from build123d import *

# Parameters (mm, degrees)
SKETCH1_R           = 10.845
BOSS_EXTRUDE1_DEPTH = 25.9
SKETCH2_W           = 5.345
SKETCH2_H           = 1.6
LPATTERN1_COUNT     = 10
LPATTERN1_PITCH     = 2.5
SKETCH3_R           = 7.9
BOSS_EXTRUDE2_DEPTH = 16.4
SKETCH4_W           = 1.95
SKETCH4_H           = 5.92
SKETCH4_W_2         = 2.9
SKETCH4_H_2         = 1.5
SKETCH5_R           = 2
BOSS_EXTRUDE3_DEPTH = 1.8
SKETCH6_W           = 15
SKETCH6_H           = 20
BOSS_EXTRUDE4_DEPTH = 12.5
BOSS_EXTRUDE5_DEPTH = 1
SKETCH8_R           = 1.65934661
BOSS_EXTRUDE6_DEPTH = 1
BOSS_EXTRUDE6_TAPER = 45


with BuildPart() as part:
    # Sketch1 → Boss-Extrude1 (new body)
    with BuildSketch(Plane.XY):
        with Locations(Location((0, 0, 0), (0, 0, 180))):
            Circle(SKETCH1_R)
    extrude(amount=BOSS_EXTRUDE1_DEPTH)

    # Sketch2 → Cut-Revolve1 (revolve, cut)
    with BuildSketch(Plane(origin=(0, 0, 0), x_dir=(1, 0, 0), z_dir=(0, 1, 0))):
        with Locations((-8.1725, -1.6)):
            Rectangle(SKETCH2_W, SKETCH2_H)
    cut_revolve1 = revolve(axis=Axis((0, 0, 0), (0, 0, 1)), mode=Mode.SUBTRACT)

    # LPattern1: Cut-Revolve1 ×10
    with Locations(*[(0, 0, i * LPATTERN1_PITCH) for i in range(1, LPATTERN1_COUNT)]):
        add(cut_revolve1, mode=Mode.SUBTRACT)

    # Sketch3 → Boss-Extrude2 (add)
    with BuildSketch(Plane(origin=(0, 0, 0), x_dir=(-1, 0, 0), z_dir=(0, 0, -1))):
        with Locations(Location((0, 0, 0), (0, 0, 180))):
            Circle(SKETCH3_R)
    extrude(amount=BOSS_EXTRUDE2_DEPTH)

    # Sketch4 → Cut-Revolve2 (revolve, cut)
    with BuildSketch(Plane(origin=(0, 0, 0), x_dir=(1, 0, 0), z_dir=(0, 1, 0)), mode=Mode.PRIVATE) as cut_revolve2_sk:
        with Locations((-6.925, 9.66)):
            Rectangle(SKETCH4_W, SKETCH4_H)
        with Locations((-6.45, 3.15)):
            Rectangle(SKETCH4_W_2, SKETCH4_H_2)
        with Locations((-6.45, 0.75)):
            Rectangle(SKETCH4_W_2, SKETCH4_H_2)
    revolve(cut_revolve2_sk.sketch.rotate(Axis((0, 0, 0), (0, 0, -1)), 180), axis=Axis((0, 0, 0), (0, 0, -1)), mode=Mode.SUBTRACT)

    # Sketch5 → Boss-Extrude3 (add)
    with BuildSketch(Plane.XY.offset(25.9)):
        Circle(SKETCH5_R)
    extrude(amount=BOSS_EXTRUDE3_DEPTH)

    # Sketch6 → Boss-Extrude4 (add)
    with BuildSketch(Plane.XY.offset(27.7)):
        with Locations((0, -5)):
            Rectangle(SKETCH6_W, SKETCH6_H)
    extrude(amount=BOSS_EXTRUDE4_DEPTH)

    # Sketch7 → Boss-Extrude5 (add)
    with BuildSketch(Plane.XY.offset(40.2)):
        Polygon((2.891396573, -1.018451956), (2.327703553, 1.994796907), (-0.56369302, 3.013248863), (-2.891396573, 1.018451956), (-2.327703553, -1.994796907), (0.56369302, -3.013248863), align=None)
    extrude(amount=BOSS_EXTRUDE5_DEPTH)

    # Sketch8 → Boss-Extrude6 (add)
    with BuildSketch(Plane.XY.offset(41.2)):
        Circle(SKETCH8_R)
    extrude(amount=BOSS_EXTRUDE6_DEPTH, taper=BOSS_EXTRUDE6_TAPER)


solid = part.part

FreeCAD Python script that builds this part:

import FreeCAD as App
import Part
import Sketcher

V = App.Vector
Q = App.Units.Quantity

doc = App.newDocument("Part")
params = doc.addObject("Spreadsheet::Sheet", "Params")
for row, (alias, value) in enumerate([
    ("sketch1_diameter", "21.69 mm"),
    ("pad1_length", "25.9 mm"),
    ("sketch2_height", "1.6 mm"),
    ("groove_angle", "360 deg"),
    ("linearpattern_pitch", "2.5 mm"),
    ("sketch3_diameter", "15.8 mm"),
    ("pad2_length", "16.4 mm"),
    ("sketch4_width", "2.9 mm"),
    ("sketch4_height", "1.5 mm"),
    ("sketch4_width2", "1.95 mm"),
    ("sketch4_height2", "5.92 mm"),
    ("groove2_angle", "360 deg"),
    ("sketch5_diameter", "4 mm"),
    ("pad3_length", "1.8 mm"),
    ("sketch6_width", "15 mm"),
    ("sketch6_height", "20 mm"),
    ("pad4_length", "12.5 mm"),
    ("pad5_length", "1 mm"),
    ("pad6_length", "1 mm"),
    ("pad6_taper", "-45 deg"),
], start=1):
    params.set(f"A{row}", alias)
    params.set(f"B{row}", "=" + value)
    params.setAlias(f"B{row}", alias)

body = doc.addObject("PartDesign::Body", "Body")

# Sketch on XY plane
sketch1 = doc.addObject("Sketcher::SketchObject", "Sketch")
body.addObject(sketch1)
sketch1.AttachmentSupport = (doc.XY_Plane, [""])
sketch1.MapMode = "FlatFace"
sketch1.addGeometry(Part.Circle(V(0, 0, 0), V(0, 0, 1), 11), False)
sketch1.addConstraint([
    Sketcher.Constraint("Coincident", 0, 3, -1, 1),
    Sketcher.Constraint("Diameter", 0, Q("21.69 mm")),
])
sketch1.setExpression("Constraints[1]", "Params.sketch1_diameter")
pad1 = doc.addObject("PartDesign::Pad", "Pad")
body.addObject(pad1)
pad1.Profile = sketch1
pad1.setExpression("Length", "Params.pad1_length")

# Sketch on XZ plane
sketch2 = doc.addObject("Sketcher::SketchObject", "Sketch001")
body.addObject(sketch2)
sketch2.AttachmentSupport = (doc.XZ_Plane, [""])
sketch2.MapMode = "FlatFace"
sketch2.addGeometry([
    Part.LineSegment(V(-10.8, 0.8, 0), V(-10.8, 2.4, 0)),
    Part.LineSegment(V(-10.8, 2.4, 0), V(-5.5, 2.4, 0)),
    Part.LineSegment(V(-5.5, 2.4, 0), V(-5.5, 0.8, 0)),
    Part.LineSegment(V(-5.5, 0.8, 0), V(-10.8, 0.8, 0)),
], False)
sketch2.addConstraint([
    Sketcher.Constraint("Coincident", 0, 2, 1, 1),
    Sketcher.Constraint("Coincident", 1, 2, 2, 1),
    Sketcher.Constraint("Coincident", 2, 2, 3, 1),
    Sketcher.Constraint("Coincident", 3, 2, 0, 1),
    Sketcher.Constraint("Vertical", 0),
    Sketcher.Constraint("Horizontal", 1),
    Sketcher.Constraint("Vertical", 2),
    Sketcher.Constraint("Horizontal", 3),
    Sketcher.Constraint("DistanceY", 0, 1, 0, 2, Q("1.6 mm")),
    Sketcher.Constraint("DistanceY", -1, 1, 0, 2, Q("2.4 mm")),
    Sketcher.Constraint("DistanceX", 1, 2, -1, 1, Q("5.5 mm")),
    Sketcher.Constraint("DistanceX", 1, 1, 1, 2, Q("5.345 mm")),
])
sketch2.setExpression("Constraints[8]", "Params.sketch2_height")
groove = doc.addObject("PartDesign::Groove", "Groove")
body.addObject(groove)
groove.Profile = sketch2
groove.ReferenceAxis = (sketch2, ["V_Axis"])
groove.setExpression("Angle", "Params.groove_angle")
doc.recompute()

linearpattern = doc.addObject("PartDesign::LinearPattern", "LinearPattern")
body.addObject(linearpattern)
linearpattern.Originals = [groove]
linearpattern.Direction = (doc.Z_Axis, [""])
linearpattern.Mode = "offset"
linearpattern.setExpression("Offset", "Params.linearpattern_pitch")
linearpattern.Occurrences = 10
body.Tip = linearpattern

# Sketch on XY plane
sketch3 = doc.addObject("Sketcher::SketchObject", "Sketch002")
body.addObject(sketch3)
sketch3.AttachmentSupport = (doc.XY_Plane, [""])
sketch3.MapMode = "FlatFace"
sketch3.addGeometry(Part.Circle(V(0, 0, 0), V(0, 0, 1), 8), False)
sketch3.addConstraint([
    Sketcher.Constraint("Coincident", 0, 3, -1, 1),
    Sketcher.Constraint("Diameter", 0, Q("15.8 mm")),
])
sketch3.setExpression("Constraints[1]", "Params.sketch3_diameter")
pad2 = doc.addObject("PartDesign::Pad", "Pad001")
body.addObject(pad2)
pad2.Profile = sketch3
pad2.setExpression("Length", "Params.pad2_length")
pad2.Reversed = True

# Sketch on XZ plane
sketch4 = doc.addObject("Sketcher::SketchObject", "Sketch003")
body.addObject(sketch4)
sketch4.AttachmentSupport = (doc.XZ_Plane, [""])
sketch4.MapMode = "FlatFace"
sketch4.addGeometry([
    Part.LineSegment(V(-7.9, -12.6, 0), V(-7.9, -6.7, 0)),  # 0
    Part.LineSegment(V(-7.9, -6.7, 0), V(-6, -6.7, 0)),  # 1
    Part.LineSegment(V(-6, -6.7, 0), V(-6, -12.6, 0)),  # 2
    Part.LineSegment(V(-6, -12.6, 0), V(-7.9, -12.6, 0)),  # 3
    Part.LineSegment(V(-7.9, -3.9, 0), V(-7.9, -2.4, 0)),  # 4
    Part.LineSegment(V(-7.9, -2.4, 0), V(-5, -2.4, 0)),  # 5
    Part.LineSegment(V(-5, -2.4, 0), V(-5, -3.9, 0)),  # 6
    Part.LineSegment(V(-5, -3.9, 0), V(-7.9, -3.9, 0)),  # 7
    Part.LineSegment(V(-7.9, -1.5, 0), V(-7.9, 0, 0)),  # 8
    Part.LineSegment(V(-7.9, 0, 0), V(-5, 0, 0)),  # 9
    Part.LineSegment(V(-5, 0, 0), V(-5, -1.5, 0)),  # 10
    Part.LineSegment(V(-5, -1.5, 0), V(-7.9, -1.5, 0)),  # 11
], False)
sketch4.addConstraint([
    Sketcher.Constraint("Coincident", 0, 2, 1, 1),
    Sketcher.Constraint("Coincident", 1, 2, 2, 1),
    Sketcher.Constraint("Coincident", 2, 2, 3, 1),
    Sketcher.Constraint("Coincident", 3, 2, 0, 1),
    Sketcher.Constraint("Coincident", 4, 2, 5, 1),
    Sketcher.Constraint("Coincident", 5, 2, 6, 1),
    Sketcher.Constraint("Coincident", 6, 2, 7, 1),
    Sketcher.Constraint("Coincident", 7, 2, 4, 1),
    Sketcher.Constraint("Coincident", 8, 2, 9, 1),
    Sketcher.Constraint("Coincident", 9, 2, 10, 1),
    Sketcher.Constraint("Coincident", 10, 2, 11, 1),
    Sketcher.Constraint("Coincident", 11, 2, 8, 1),
    Sketcher.Constraint("Vertical", 0),
    Sketcher.Constraint("Horizontal", 1),
    Sketcher.Constraint("Vertical", 2),
    Sketcher.Constraint("Horizontal", 3),
    Sketcher.Constraint("Vertical", 4),
    Sketcher.Constraint("Horizontal", 5),
    Sketcher.Constraint("Vertical", 6),
    Sketcher.Constraint("Horizontal", 7),
    Sketcher.Constraint("Vertical", 8),
    Sketcher.Constraint("Horizontal", 9),
    Sketcher.Constraint("Vertical", 10),
    Sketcher.Constraint("Horizontal", 11),
    Sketcher.Constraint("PointOnObject", 8, 2, -1),
    Sketcher.Constraint("Vertical", 3, 2, 4, 2),
    Sketcher.Constraint("Vertical", 7, 2, 8, 2),
    Sketcher.Constraint("Vertical", 6, 2, 9, 2),
    Sketcher.Constraint("Equal", 6, 8),
    Sketcher.Constraint("DistanceX", 5, 1, 5, 2, Q("2.9 mm")),
    Sketcher.Constraint("DistanceY", 4, 1, 4, 2, Q("1.5 mm")),
    Sketcher.Constraint("DistanceX", 5, 2, -1, 1, Q("5 mm")),
    Sketcher.Constraint("DistanceX", 1, 1, 1, 2, Q("1.95 mm")),
    Sketcher.Constraint("DistanceY", 0, 1, 0, 2, Q("5.92 mm")),
    Sketcher.Constraint("DistanceY", 0, 2, -1, 1, Q("6.7 mm")),
    Sketcher.Constraint("DistanceY", 4, 2, -1, 1, Q("2.4 mm")),
])
sketch4.setExpression("Constraints[29]", "Params.sketch4_width")
sketch4.setExpression("Constraints[30]", "Params.sketch4_height")
sketch4.setExpression("Constraints[32]", "Params.sketch4_width2")
sketch4.setExpression("Constraints[33]", "Params.sketch4_height2")
groove2 = doc.addObject("PartDesign::Groove", "Groove001")
body.addObject(groove2)
groove2.Profile = sketch4
groove2.ReferenceAxis = (sketch4, ["V_Axis"])
groove2.setExpression("Angle", "Params.groove2_angle")

# Sketch on XY plane
sketch5 = doc.addObject("Sketcher::SketchObject", "Sketch004")
body.addObject(sketch5)
sketch5.AttachmentSupport = (doc.XY_Plane, [""])
sketch5.MapMode = "FlatFace"
sketch5.AttachmentOffset = App.Placement(V(0, 0, 25.9), App.Rotation())
sketch5.addGeometry(Part.Circle(V(0, 0, 0), V(0, 0, 1), 2), False)
sketch5.addConstraint([
    Sketcher.Constraint("Coincident", 0, 3, -1, 1),
    Sketcher.Constraint("Diameter", 0, Q("4 mm")),
])
sketch5.setExpression("Constraints[1]", "Params.sketch5_diameter")
pad3 = doc.addObject("PartDesign::Pad", "Pad002")
body.addObject(pad3)
pad3.Profile = sketch5
pad3.setExpression("Length", "Params.pad3_length")

# Sketch on XY plane
sketch6 = doc.addObject("Sketcher::SketchObject", "Sketch005")
body.addObject(sketch6)
sketch6.AttachmentSupport = (doc.XY_Plane, [""])
sketch6.MapMode = "FlatFace"
sketch6.AttachmentOffset = App.Placement(V(0, 0, 27.7), App.Rotation())
sketch6.addGeometry([
    Part.LineSegment(V(-8, 5, 0), V(-8, -15, 0)),
    Part.LineSegment(V(-8, -15, 0), V(8, -15, 0)),
    Part.LineSegment(V(8, -15, 0), V(8, 5, 0)),
    Part.LineSegment(V(8, 5, 0), V(-8, 5, 0)),
], False)
sketch6.addConstraint([
    Sketcher.Constraint("Coincident", 0, 2, 1, 1),
    Sketcher.Constraint("Coincident", 1, 2, 2, 1),
    Sketcher.Constraint("Coincident", 2, 2, 3, 1),
    Sketcher.Constraint("Coincident", 3, 2, 0, 1),
    Sketcher.Constraint("Vertical", 0),
    Sketcher.Constraint("Horizontal", 1),
    Sketcher.Constraint("Vertical", 2),
    Sketcher.Constraint("Horizontal", 3),
    Sketcher.Constraint("DistanceX", 1, 1, 1, 2, Q("15 mm")),
    Sketcher.Constraint("DistanceY", 0, 2, 0, 1, Q("20 mm")),
    Sketcher.Constraint("DistanceY", 0, 2, -1, 1, Q("15 mm")),
    Sketcher.Constraint("DistanceX", 0, 2, -1, 1, Q("7.5 mm")),
])
sketch6.setExpression("Constraints[8]", "Params.sketch6_width")
sketch6.setExpression("Constraints[9]", "Params.sketch6_height")
pad4 = doc.addObject("PartDesign::Pad", "Pad003")
body.addObject(pad4)
pad4.Profile = sketch6
pad4.setExpression("Length", "Params.pad4_length")

# Sketch on XY plane
sketch7 = doc.addObject("Sketcher::SketchObject", "Sketch006")
body.addObject(sketch7)
sketch7.AttachmentSupport = (doc.XY_Plane, [""])
sketch7.MapMode = "FlatFace"
sketch7.AttachmentOffset = App.Placement(V(0, 0, 40.2), App.Rotation())
sketch7.addGeometry([
    Part.LineSegment(V(2.9, -1, 0), V(2.3, 2, 0)),  # 0
    Part.LineSegment(V(2.3, 2, 0), V(-0.6, 3, 0)),  # 1
    Part.LineSegment(V(-0.6, 3, 0), V(-2.9, 1, 0)),  # 2
    Part.LineSegment(V(-2.9, 1, 0), V(-2.3, -2, 0)),  # 3
    Part.LineSegment(V(-2.3, -2, 0), V(0.6, -3, 0)),  # 4
    Part.LineSegment(V(0.6, -3, 0), V(2.9, -1, 0)),  # 5
], False)
sketch7.addConstraint([
    Sketcher.Constraint("Coincident", 0, 2, 1, 1),
    Sketcher.Constraint("Coincident", 1, 2, 2, 1),
    Sketcher.Constraint("Coincident", 2, 2, 3, 1),
    Sketcher.Constraint("Coincident", 3, 2, 4, 1),
    Sketcher.Constraint("Coincident", 4, 2, 5, 1),
    Sketcher.Constraint("Coincident", 5, 2, 0, 1),
    Sketcher.Constraint("Symmetric", 0, 2, 3, 2, -1, 1),
    Sketcher.Constraint("Symmetric", 1, 2, 4, 2, -1, 1),
    Sketcher.Constraint("Symmetric", 2, 2, 5, 2, -1, 1),
    Sketcher.Constraint("Equal", 0, 1),
    Sketcher.Constraint("Equal", 1, 2),
    Sketcher.Constraint("DistanceX", 2, 2, 0, 2, Q("5.2191 mm")),
    Sketcher.Constraint("DistanceY", 4, 2, 2, 2, Q("4.031701 mm")),
    Sketcher.Constraint("Distance", 0, Q("3.065521 mm")),
    Sketcher.Constraint("DistanceY", -1, 1, 1, 2, Q("3.013249 mm")),
])
pad5 = doc.addObject("PartDesign::Pad", "Pad004")
body.addObject(pad5)
pad5.Profile = sketch7
pad5.setExpression("Length", "Params.pad5_length")

# Sketch on XY plane
sketch8 = doc.addObject("Sketcher::SketchObject", "Sketch007")
body.addObject(sketch8)
sketch8.AttachmentSupport = (doc.XY_Plane, [""])
sketch8.MapMode = "FlatFace"
sketch8.AttachmentOffset = App.Placement(V(0, 0, 41.2), App.Rotation())
sketch8.addGeometry(Part.Circle(V(0, 0, 0), V(0, 0, 1), 1.7), False)
sketch8.addConstraint([
    Sketcher.Constraint("Coincident", 0, 3, -1, 1),
    Sketcher.Constraint("Diameter", 0, Q("3.318693 mm")),
])
pad6 = doc.addObject("PartDesign::Pad", "Pad005")
body.addObject(pad6)
pad6.Profile = sketch8
pad6.setExpression("Length", "Params.pad6_length")
pad6.setExpression("TaperAngle", "Params.pad6_taper")

doc.recompute()
